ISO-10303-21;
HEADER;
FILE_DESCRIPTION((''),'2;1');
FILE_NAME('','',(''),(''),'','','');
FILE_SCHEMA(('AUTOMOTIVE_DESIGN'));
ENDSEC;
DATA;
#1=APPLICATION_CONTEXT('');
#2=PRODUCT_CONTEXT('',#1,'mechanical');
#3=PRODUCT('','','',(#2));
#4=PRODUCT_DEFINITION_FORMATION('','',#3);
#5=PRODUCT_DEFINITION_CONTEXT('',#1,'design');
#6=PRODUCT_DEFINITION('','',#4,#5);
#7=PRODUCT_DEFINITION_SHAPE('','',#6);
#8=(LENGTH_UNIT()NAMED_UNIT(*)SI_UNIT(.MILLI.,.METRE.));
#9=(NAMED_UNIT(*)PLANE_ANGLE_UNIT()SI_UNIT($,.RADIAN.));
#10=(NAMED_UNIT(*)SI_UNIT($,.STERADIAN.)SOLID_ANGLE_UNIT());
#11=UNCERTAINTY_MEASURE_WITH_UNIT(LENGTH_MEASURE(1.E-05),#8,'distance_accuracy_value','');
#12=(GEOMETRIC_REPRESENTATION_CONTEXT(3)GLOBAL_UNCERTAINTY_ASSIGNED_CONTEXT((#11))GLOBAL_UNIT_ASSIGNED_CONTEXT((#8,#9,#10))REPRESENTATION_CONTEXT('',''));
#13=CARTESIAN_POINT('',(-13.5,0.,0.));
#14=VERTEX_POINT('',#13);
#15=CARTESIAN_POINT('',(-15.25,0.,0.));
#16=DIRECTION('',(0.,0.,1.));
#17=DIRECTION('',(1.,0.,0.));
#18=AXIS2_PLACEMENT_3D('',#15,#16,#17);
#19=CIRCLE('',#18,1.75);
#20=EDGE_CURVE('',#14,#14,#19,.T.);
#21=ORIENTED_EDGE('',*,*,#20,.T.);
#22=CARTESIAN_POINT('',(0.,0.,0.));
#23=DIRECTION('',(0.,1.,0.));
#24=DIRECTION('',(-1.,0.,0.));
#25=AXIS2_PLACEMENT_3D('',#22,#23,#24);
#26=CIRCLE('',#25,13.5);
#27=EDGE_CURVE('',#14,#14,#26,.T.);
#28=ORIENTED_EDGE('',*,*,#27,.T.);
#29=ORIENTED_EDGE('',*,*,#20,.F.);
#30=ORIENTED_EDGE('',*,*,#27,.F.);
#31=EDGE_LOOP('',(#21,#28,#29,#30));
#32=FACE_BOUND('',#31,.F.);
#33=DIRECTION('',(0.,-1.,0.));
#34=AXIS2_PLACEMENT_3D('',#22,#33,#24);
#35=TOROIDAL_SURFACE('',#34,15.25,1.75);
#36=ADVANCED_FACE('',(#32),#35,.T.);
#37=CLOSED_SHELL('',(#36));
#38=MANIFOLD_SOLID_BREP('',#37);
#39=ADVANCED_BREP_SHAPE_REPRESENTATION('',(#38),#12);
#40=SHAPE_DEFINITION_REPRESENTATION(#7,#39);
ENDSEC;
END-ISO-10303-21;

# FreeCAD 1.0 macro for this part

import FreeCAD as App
import Part
import Sketcher

V = App.Vector
Q = App.Units.Quantity

doc = App.newDocument("Part")
params = doc.addObject("Spreadsheet::Sheet", "Params")
for row, (alias, value) in enumerate([
    ("sketch1_diameter", "3.5 mm"),
    ("revolution_angle", "360 deg"),
], start=1):
    params.set(f"A{row}", alias)
    params.set(f"B{row}", "=" + value)
    params.setAlias(f"B{row}", alias)

body = doc.addObject("PartDesign::Body", "Body")

# Sketch on XY plane
sketch1 = body.newObject("Sketcher::SketchObject", "Sketch")
sketch1.AttachmentSupport = (doc.getObject("XY_Plane"), [""])
sketch1.MapMode = "FlatFace"
sketch1.addGeometry(Part.Circle(V(-15.2, 0, 0), V(0, 0, 1), 1.8), False)
sketch1.addConstraint([
    Sketcher.Constraint("PointOnObject", 0, 3, -1),
    Sketcher.Constraint("Diameter", 0, Q("3.5 mm")),
    Sketcher.Constraint("DistanceX", 0, 3, -1, 1, Q("15.25 mm")),
])
sketch1.setExpression("Constraints[1]", "Params.sketch1_diameter")
revolution = body.newObject("PartDesign::Revolution", "Revolution")
revolution.Profile = sketch1
revolution.ReferenceAxis = (sketch1, ["V_Axis"])
revolution.setExpression("Angle", "Params.revolution_angle")

doc.recompute()
